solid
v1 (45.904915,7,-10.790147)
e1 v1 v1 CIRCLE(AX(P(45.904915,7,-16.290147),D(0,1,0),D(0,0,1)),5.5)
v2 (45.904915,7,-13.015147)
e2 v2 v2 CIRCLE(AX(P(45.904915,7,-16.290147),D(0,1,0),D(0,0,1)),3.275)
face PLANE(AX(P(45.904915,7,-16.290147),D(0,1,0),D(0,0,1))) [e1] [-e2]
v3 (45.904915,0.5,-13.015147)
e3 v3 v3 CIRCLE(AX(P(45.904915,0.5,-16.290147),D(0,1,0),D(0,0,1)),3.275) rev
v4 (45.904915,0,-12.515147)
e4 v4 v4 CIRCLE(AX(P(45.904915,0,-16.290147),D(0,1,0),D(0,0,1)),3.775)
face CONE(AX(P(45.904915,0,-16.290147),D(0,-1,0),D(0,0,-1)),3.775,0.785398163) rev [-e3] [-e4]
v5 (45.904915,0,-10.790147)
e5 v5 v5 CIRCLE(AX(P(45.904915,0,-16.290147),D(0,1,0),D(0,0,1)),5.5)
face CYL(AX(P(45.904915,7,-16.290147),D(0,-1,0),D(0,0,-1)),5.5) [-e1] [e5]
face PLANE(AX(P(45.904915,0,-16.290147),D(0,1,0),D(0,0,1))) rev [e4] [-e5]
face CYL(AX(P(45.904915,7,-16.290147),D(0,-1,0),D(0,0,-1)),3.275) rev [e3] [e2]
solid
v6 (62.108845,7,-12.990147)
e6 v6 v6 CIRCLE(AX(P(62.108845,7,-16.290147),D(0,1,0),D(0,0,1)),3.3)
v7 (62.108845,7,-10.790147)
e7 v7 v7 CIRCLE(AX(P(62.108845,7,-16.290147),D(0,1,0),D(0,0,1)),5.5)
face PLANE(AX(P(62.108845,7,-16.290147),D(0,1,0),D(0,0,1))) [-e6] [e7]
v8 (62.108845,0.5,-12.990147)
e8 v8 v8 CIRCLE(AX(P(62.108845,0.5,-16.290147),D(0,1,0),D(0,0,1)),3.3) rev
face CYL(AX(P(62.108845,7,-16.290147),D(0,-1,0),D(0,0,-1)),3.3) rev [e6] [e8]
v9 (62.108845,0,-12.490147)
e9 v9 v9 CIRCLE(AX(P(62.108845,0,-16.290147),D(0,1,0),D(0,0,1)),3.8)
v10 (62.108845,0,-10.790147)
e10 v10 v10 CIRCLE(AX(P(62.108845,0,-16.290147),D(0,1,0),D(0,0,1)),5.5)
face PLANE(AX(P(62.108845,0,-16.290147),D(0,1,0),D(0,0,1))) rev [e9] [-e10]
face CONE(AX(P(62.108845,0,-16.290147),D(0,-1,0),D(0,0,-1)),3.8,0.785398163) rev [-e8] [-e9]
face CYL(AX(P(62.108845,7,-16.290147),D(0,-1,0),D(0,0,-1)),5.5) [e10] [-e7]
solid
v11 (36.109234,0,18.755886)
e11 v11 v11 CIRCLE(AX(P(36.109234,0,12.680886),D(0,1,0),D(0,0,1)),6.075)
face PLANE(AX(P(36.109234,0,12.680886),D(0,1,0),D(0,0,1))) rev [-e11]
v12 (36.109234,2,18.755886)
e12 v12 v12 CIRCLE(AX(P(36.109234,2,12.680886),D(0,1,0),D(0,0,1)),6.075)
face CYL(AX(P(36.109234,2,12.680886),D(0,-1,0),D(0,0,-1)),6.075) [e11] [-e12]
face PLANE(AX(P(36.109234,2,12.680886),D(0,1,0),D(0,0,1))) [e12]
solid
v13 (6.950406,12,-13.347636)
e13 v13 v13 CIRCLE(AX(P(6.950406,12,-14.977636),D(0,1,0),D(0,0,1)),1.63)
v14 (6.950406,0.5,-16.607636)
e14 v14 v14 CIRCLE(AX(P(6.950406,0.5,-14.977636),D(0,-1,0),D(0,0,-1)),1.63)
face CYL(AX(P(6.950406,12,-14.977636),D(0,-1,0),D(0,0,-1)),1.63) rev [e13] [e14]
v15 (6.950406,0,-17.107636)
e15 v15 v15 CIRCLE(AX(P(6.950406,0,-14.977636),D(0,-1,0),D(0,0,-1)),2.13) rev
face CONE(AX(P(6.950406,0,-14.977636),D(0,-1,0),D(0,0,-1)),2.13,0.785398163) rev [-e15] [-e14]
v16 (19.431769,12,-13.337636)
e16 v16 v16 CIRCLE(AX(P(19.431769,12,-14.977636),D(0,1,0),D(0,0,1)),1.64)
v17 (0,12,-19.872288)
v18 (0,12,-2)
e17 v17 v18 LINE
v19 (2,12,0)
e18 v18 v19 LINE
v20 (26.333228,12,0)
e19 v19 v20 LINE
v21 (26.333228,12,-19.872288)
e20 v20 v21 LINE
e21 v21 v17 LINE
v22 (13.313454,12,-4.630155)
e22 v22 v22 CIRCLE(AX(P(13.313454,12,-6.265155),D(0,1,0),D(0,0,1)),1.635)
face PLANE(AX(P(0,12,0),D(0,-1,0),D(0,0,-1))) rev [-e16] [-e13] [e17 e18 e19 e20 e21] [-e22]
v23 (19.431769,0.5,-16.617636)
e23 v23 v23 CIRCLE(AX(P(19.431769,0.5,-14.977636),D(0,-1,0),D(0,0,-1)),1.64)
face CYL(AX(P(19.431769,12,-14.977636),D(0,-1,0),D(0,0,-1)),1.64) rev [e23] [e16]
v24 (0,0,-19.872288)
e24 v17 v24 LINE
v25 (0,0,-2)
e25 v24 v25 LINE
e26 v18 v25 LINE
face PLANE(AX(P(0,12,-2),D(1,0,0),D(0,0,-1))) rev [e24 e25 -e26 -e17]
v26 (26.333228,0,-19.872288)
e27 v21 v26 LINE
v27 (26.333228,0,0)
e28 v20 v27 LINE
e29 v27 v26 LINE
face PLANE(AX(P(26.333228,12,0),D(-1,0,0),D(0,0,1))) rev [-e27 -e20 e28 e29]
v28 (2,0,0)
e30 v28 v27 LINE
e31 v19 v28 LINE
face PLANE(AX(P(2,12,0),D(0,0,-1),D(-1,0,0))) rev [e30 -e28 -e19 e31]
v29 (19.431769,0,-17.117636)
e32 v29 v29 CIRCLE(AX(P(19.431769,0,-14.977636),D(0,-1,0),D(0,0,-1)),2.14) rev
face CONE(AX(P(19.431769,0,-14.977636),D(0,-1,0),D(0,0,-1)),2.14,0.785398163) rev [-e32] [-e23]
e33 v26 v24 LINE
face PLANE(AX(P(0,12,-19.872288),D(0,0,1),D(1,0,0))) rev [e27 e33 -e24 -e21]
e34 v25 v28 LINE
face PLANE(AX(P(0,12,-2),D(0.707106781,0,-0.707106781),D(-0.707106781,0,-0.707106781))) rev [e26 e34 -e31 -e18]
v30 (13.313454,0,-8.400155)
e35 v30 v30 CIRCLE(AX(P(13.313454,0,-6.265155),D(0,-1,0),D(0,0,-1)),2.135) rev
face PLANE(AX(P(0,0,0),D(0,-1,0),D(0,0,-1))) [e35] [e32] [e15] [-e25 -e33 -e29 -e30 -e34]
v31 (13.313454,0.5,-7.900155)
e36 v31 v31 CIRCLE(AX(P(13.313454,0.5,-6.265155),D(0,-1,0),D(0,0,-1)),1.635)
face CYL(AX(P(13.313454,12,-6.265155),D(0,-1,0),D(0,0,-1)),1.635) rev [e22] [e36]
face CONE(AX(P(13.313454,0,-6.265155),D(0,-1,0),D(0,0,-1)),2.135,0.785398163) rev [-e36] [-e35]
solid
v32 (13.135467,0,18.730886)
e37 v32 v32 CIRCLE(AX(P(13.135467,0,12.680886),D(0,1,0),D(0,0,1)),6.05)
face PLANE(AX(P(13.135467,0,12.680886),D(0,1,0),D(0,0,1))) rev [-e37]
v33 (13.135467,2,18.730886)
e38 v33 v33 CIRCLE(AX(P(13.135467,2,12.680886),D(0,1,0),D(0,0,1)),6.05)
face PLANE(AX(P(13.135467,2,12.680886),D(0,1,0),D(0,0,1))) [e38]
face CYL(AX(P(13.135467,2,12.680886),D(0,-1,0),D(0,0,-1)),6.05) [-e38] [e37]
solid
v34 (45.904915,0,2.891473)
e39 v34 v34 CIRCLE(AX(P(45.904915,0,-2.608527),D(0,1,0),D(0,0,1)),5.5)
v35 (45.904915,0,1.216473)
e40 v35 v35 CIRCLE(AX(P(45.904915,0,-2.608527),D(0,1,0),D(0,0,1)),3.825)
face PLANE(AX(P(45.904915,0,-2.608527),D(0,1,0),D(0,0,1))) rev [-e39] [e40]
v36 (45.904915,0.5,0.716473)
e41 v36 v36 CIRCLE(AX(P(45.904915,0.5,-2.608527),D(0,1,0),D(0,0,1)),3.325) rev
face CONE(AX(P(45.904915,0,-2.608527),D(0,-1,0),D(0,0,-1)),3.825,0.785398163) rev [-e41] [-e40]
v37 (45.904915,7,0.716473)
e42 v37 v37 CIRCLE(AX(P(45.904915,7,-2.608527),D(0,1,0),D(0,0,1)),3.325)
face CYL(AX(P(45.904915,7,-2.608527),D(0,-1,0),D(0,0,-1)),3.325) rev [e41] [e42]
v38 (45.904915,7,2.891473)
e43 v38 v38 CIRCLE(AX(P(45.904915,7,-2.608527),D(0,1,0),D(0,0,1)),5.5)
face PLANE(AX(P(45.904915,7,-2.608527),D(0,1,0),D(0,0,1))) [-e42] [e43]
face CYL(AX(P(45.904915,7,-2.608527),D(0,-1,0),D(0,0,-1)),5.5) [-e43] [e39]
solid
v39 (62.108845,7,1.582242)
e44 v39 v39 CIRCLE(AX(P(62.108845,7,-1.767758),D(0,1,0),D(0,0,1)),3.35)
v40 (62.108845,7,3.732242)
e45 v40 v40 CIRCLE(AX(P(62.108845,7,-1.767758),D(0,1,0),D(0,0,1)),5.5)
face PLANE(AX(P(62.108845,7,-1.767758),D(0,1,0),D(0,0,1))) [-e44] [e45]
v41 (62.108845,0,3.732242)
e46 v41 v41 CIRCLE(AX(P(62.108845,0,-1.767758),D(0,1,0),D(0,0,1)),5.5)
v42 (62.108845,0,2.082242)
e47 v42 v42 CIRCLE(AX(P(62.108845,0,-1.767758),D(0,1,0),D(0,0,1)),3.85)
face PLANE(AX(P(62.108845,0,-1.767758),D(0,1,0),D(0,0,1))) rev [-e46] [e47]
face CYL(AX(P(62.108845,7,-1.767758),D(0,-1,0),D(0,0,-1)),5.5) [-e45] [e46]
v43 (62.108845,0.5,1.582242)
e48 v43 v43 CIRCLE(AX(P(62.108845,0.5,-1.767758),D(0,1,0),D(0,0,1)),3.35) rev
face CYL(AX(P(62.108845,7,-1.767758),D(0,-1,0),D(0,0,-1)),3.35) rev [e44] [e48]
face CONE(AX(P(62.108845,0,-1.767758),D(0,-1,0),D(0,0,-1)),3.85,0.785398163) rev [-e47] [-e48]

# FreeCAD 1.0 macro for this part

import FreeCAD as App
import Part
import Sketcher

V = App.Vector
Q = App.Units.Quantity


def edges_at(feature, points):
    """Names of the edges that pass closest to the given points."""
    edges = feature.Shape.Edges
    near = lambda p: min(range(len(edges)), key=lambda i: edges[i].distToShape(Part.Vertex(*p))[0])
    return sorted({f"Edge{near(p) + 1}" for p in points})


def add_polygon(sketch, points):
    """Adds a closed chain of lines whose ends are joined by coincident constraints."""
    first, n = sketch.GeometryCount, len(points)
    for a, b in zip(points, points[1:] + points[:1]):
        sketch.addGeometry(Part.LineSegment(App.Vector(*a, 0), App.Vector(*b, 0)), False)
    for i in range(n):
        sketch.addConstraint(Sketcher.Constraint("Coincident", first + i, 2, first + (i + 1) % n, 1))

doc = App.newDocument("Part")
body = doc.addObject("PartDesign::Body", "Body")

sketch1 = body.newObject("Sketcher::SketchObject", "Sketch")
sketch1.AttachmentSupport = (doc.getObject("XZ_Plane"), [""])
sketch1.MapMode = "FlatFace"
add_polygon(sketch1, [(0, -2), (2, 0), (26.3, 0), (26.3, -19.9), (0, -19.9)])
sketch1.addGeometry(Part.Circle(V(13.3, -6.3, 0), V(0, 0, 1), 1.6), False)
sketch1.addGeometry(Part.Circle(V(7, -15, 0), V(0, 0, 1), 1.6), False)
sketch1.addGeometry(Part.Circle(V(19.4, -15, 0), V(0, 0, 1), 1.6), False)
sketch1.addConstraint(Sketcher.Constraint("Horizontal", 1))
sketch1.addConstraint(Sketcher.Constraint("Vertical", 2))
sketch1.addConstraint(Sketcher.Constraint("Horizontal", 3))
sketch1.addConstraint(Sketcher.Constraint("Vertical", 4))
sketch1.addConstraint(Sketcher.Constraint("PointOnObject", 0, 2, -1))
sketch1.addConstraint(Sketcher.Constraint("PointOnObject", 3, 2, -2))
sketch1.addConstraint(Sketcher.Constraint("Horizontal", 6, 3, 7, 3))
sketch1.addConstraint(Sketcher.Constraint("Diameter", 5, 3.27))
sketch1.addConstraint(Sketcher.Constraint("Diameter", 6, 3.26))
sketch1.addConstraint(Sketcher.Constraint("Diameter", 7, 3.28))
sketch1.addConstraint(Sketcher.Constraint("Angle", 0, Q("45 deg")))
sketch1.addConstraint(Sketcher.Constraint("DistanceX", -1, 1, 0, 2, 2.0))
sketch1.addConstraint(Sketcher.Constraint("DistanceX", 1, 1, 1, 2, 24.333228))
sketch1.addConstraint(Sketcher.Constraint("DistanceY", 2, 2, 2, 1, 19.872288))
sketch1.addConstraint(Sketcher.Constraint("DistanceX", -1, 1, 7, 3, 19.431769))
sketch1.addConstraint(Sketcher.Constraint("DistanceY", 6, 3, 5, 3, 8.712481))
sketch1.addConstraint(Sketcher.Constraint("DistanceX", -1, 1, 5, 3, 13.313454))
sketch1.addConstraint(Sketcher.Constraint("DistanceY", 5, 3, -1, 1, 6.265155))
sketch1.addConstraint(Sketcher.Constraint("DistanceX", -1, 1, 6, 3, 6.950406))
pad1 = body.newObject("PartDesign::Pad", "Pad")
pad1.Profile = sketch1
pad1.Length = 12
pad1.Reversed = True
doc.recompute()

chamfer = body.newObject("PartDesign::Chamfer", "Chamfer")
chamfer.Base = (pad1, edges_at(pad1, [(6.95, 0, -16.608), (13.313, 0, -7.9), (19.432, 0, -16.618)]))
chamfer.Size = 0.5
body2 = doc.addObject("PartDesign::Body", "Body001")

sketch2 = body2.newObject("Sketcher::SketchObject", "Sketch001")
sketch2.AttachmentSupport = (doc.getObject("XZ_Plane001"), [""])
sketch2.MapMode = "FlatFace"
sketch2.addGeometry(Part.Circle(V(45.9, -16.3, 0), V(0, 0, 1), 5.5), False)
sketch2.addGeometry(Part.Circle(V(45.9, -16.3, 0), V(0, 0, 1), 3.3), False)
sketch2.addConstraint(Sketcher.Constraint("Coincident", 1, 3, 0, 3))
sketch2.addConstraint(Sketcher.Constraint("Diameter", 0, 11.0))
sketch2.addConstraint(Sketcher.Constraint("Diameter", 1, 6.55))
sketch2.addConstraint(Sketcher.Constraint("DistanceX", -1, 1, 0, 3, 45.904915))
sketch2.addConstraint(Sketcher.Constraint("DistanceY", 0, 3, -1, 1, 16.290147))
pad2 = body2.newObject("PartDesign::Pad", "Pad001")
pad2.Profile = sketch2
pad2.Length = 7
pad2.Reversed = True
doc.recompute()

chamfer2 = body2.newObject("PartDesign::Chamfer", "Chamfer001")
chamfer2.Base = (pad2, edges_at(pad2, [(45.905, 0, -19.565)]))
chamfer2.Size = 0.5
body3 = doc.addObject("PartDesign::Body", "Body002")

sketch3 = body3.newObject("Sketcher::SketchObject", "Sketch002")
sketch3.AttachmentSupport = (doc.getObject("XZ_Plane002"), [""])
sketch3.MapMode = "FlatFace"
sketch3.addGeometry(Part.Circle(V(62.1, -16.3, 0), V(0, 0, 1), 5.5), False)
sketch3.addGeometry(Part.Circle(V(62.1, -16.3, 0), V(0, 0, 1), 3.3), False)
sketch3.addConstraint(Sketcher.Constraint("Coincident", 1, 3, 0, 3))
sketch3.addConstraint(Sketcher.Constraint("Diameter", 0, 11.0))
sketch3.addConstraint(Sketcher.Constraint("Diameter", 1, 6.6))
sketch3.addConstraint(Sketcher.Constraint("DistanceX", -1, 1, 0, 3, 62.108845))
sketch3.addConstraint(Sketcher.Constraint("DistanceY", 0, 3, -1, 1, 16.290147))
pad3 = body3.newObject("PartDesign::Pad", "Pad002")
pad3.Profile = sketch3
pad3.Length = 7
pad3.Reversed = True
doc.recompute()

chamfer3 = body3.newObject("PartDesign::Chamfer", "Chamfer002")
chamfer3.Base = (pad3, edges_at(pad3, [(62.109, 0, -19.59)]))
chamfer3.Size = 0.5
body4 = doc.addObject("PartDesign::Body", "Body003")

sketch4 = body4.newObject("Sketcher::SketchObject", "Sketch003")
sketch4.AttachmentSupport = (doc.getObject("XZ_Plane003"), [""])
sketch4.MapMode = "FlatFace"
sketch4.addGeometry(Part.Circle(V(45.9, -2.6, 0), V(0, 0, 1), 5.5), False)
sketch4.addGeometry(Part.Circle(V(45.9, -2.6, 0), V(0, 0, 1), 3.3), False)
sketch4.addConstraint(Sketcher.Constraint("Coincident", 1, 3, 0, 3))
sketch4.addConstraint(Sketcher.Constraint("Diameter", 0, 11.0))
sketch4.addConstraint(Sketcher.Constraint("Diameter", 1, 6.65))
sketch4.addConstraint(Sketcher.Constraint("DistanceX", -1, 1, 0, 3, 45.904915))
sketch4.addConstraint(Sketcher.Constraint("DistanceY", 0, 3, -1, 1, 2.608527))
pad4 = body4.newObject("PartDesign::Pad", "Pad003")
pad4.Profile = sketch4
pad4.Length = 7
pad4.Reversed = True
doc.recompute()

chamfer4 = body4.newObject("PartDesign::Chamfer", "Chamfer003")
chamfer4.Base = (pad4, edges_at(pad4, [(45.905, 0, -5.934)]))
chamfer4.Size = 0.5
body5 = doc.addObject("PartDesign::Body", "Body004")

sketch5 = body5.newObject("Sketcher::SketchObject", "Sketch004")
sketch5.AttachmentSupport = (doc.getObject("XZ_Plane004"), [""])
sketch5.MapMode = "FlatFace"
sketch5.addGeometry(Part.Circle(V(62.1, -1.8, 0), V(0, 0, 1), 5.5), False)
sketch5.addGeometry(Part.Circle(V(62.1, -1.8, 0), V(0, 0, 1), 3.4), False)
sketch5.addConstraint(Sketcher.Constraint("Coincident", 1, 3, 0, 3))
sketch5.addConstraint(Sketcher.Constraint("Diameter", 0, 11.0))
sketch5.addConstraint(Sketcher.Constraint("Diameter", 1, 6.7))
sketch5.addConstraint(Sketcher.Constraint("DistanceX", -1, 1, 0, 3, 62.108845))
sketch5.addConstraint(Sketcher.Constraint("DistanceY", 0, 3, -1, 1, 1.767758))
pad5 = body5.newObject("PartDesign::Pad", "Pad004")
pad5.Profile = sketch5
pad5.Length = 7
pad5.Reversed = True
doc.recompute()

chamfer5 = body5.newObject("PartDesign::Chamfer", "Chamfer004")
chamfer5.Base = (pad5, edges_at(pad5, [(62.109, 0, -5.118)]))
chamfer5.Size = 0.5
body6 = doc.addObject("PartDesign::Body", "Body005")

sketch6 = body6.newObject("Sketcher::SketchObject", "Sketch005")
sketch6.AttachmentSupport = (doc.getObject("XZ_Plane005"), [""])
sketch6.MapMode = "FlatFace"
sketch6.addGeometry(Part.Circle(V(13, 13, 0), V(0, 0, 1), 6), False)
sketch6.addConstraint(Sketcher.Constraint("Diameter", 0, 12.1))
sketch6.addConstraint(Sketcher.Constraint("DistanceX", -1, 1, 0, 3, 13.135467))
sketch6.addConstraint(Sketcher.Constraint("DistanceY", -1, 1, 0, 3, 12.680886))
pad6 = body6.newObject("PartDesign::Pad", "Pad005")
pad6.Profile = sketch6
pad6.Length = 2
pad6.Reversed = True
body7 = doc.addObject("PartDesign::Body", "Body006")

sketch7 = body7.newObject("Sketcher::SketchObject", "Sketch006")
sketch7.AttachmentSupport = (doc.getObject("XZ_Plane006"), [""])
sketch7.MapMode = "FlatFace"
sketch7.addGeometry(Part.Circle(V(36, 13, 0), V(0, 0, 1), 6), False)
sketch7.addConstraint(Sketcher.Constraint("Diameter", 0, 12.15))
sketch7.addConstraint(Sketcher.Constraint("DistanceX", -1, 1, 0, 3, 36.109234))
sketch7.addConstraint(Sketcher.Constraint("DistanceY", -1, 1, 0, 3, 12.680886))
pad7 = body7.newObject("PartDesign::Pad", "Pad006")
pad7.Profile = sketch7
pad7.Length = 2
pad7.Reversed = True

doc.recompute()
